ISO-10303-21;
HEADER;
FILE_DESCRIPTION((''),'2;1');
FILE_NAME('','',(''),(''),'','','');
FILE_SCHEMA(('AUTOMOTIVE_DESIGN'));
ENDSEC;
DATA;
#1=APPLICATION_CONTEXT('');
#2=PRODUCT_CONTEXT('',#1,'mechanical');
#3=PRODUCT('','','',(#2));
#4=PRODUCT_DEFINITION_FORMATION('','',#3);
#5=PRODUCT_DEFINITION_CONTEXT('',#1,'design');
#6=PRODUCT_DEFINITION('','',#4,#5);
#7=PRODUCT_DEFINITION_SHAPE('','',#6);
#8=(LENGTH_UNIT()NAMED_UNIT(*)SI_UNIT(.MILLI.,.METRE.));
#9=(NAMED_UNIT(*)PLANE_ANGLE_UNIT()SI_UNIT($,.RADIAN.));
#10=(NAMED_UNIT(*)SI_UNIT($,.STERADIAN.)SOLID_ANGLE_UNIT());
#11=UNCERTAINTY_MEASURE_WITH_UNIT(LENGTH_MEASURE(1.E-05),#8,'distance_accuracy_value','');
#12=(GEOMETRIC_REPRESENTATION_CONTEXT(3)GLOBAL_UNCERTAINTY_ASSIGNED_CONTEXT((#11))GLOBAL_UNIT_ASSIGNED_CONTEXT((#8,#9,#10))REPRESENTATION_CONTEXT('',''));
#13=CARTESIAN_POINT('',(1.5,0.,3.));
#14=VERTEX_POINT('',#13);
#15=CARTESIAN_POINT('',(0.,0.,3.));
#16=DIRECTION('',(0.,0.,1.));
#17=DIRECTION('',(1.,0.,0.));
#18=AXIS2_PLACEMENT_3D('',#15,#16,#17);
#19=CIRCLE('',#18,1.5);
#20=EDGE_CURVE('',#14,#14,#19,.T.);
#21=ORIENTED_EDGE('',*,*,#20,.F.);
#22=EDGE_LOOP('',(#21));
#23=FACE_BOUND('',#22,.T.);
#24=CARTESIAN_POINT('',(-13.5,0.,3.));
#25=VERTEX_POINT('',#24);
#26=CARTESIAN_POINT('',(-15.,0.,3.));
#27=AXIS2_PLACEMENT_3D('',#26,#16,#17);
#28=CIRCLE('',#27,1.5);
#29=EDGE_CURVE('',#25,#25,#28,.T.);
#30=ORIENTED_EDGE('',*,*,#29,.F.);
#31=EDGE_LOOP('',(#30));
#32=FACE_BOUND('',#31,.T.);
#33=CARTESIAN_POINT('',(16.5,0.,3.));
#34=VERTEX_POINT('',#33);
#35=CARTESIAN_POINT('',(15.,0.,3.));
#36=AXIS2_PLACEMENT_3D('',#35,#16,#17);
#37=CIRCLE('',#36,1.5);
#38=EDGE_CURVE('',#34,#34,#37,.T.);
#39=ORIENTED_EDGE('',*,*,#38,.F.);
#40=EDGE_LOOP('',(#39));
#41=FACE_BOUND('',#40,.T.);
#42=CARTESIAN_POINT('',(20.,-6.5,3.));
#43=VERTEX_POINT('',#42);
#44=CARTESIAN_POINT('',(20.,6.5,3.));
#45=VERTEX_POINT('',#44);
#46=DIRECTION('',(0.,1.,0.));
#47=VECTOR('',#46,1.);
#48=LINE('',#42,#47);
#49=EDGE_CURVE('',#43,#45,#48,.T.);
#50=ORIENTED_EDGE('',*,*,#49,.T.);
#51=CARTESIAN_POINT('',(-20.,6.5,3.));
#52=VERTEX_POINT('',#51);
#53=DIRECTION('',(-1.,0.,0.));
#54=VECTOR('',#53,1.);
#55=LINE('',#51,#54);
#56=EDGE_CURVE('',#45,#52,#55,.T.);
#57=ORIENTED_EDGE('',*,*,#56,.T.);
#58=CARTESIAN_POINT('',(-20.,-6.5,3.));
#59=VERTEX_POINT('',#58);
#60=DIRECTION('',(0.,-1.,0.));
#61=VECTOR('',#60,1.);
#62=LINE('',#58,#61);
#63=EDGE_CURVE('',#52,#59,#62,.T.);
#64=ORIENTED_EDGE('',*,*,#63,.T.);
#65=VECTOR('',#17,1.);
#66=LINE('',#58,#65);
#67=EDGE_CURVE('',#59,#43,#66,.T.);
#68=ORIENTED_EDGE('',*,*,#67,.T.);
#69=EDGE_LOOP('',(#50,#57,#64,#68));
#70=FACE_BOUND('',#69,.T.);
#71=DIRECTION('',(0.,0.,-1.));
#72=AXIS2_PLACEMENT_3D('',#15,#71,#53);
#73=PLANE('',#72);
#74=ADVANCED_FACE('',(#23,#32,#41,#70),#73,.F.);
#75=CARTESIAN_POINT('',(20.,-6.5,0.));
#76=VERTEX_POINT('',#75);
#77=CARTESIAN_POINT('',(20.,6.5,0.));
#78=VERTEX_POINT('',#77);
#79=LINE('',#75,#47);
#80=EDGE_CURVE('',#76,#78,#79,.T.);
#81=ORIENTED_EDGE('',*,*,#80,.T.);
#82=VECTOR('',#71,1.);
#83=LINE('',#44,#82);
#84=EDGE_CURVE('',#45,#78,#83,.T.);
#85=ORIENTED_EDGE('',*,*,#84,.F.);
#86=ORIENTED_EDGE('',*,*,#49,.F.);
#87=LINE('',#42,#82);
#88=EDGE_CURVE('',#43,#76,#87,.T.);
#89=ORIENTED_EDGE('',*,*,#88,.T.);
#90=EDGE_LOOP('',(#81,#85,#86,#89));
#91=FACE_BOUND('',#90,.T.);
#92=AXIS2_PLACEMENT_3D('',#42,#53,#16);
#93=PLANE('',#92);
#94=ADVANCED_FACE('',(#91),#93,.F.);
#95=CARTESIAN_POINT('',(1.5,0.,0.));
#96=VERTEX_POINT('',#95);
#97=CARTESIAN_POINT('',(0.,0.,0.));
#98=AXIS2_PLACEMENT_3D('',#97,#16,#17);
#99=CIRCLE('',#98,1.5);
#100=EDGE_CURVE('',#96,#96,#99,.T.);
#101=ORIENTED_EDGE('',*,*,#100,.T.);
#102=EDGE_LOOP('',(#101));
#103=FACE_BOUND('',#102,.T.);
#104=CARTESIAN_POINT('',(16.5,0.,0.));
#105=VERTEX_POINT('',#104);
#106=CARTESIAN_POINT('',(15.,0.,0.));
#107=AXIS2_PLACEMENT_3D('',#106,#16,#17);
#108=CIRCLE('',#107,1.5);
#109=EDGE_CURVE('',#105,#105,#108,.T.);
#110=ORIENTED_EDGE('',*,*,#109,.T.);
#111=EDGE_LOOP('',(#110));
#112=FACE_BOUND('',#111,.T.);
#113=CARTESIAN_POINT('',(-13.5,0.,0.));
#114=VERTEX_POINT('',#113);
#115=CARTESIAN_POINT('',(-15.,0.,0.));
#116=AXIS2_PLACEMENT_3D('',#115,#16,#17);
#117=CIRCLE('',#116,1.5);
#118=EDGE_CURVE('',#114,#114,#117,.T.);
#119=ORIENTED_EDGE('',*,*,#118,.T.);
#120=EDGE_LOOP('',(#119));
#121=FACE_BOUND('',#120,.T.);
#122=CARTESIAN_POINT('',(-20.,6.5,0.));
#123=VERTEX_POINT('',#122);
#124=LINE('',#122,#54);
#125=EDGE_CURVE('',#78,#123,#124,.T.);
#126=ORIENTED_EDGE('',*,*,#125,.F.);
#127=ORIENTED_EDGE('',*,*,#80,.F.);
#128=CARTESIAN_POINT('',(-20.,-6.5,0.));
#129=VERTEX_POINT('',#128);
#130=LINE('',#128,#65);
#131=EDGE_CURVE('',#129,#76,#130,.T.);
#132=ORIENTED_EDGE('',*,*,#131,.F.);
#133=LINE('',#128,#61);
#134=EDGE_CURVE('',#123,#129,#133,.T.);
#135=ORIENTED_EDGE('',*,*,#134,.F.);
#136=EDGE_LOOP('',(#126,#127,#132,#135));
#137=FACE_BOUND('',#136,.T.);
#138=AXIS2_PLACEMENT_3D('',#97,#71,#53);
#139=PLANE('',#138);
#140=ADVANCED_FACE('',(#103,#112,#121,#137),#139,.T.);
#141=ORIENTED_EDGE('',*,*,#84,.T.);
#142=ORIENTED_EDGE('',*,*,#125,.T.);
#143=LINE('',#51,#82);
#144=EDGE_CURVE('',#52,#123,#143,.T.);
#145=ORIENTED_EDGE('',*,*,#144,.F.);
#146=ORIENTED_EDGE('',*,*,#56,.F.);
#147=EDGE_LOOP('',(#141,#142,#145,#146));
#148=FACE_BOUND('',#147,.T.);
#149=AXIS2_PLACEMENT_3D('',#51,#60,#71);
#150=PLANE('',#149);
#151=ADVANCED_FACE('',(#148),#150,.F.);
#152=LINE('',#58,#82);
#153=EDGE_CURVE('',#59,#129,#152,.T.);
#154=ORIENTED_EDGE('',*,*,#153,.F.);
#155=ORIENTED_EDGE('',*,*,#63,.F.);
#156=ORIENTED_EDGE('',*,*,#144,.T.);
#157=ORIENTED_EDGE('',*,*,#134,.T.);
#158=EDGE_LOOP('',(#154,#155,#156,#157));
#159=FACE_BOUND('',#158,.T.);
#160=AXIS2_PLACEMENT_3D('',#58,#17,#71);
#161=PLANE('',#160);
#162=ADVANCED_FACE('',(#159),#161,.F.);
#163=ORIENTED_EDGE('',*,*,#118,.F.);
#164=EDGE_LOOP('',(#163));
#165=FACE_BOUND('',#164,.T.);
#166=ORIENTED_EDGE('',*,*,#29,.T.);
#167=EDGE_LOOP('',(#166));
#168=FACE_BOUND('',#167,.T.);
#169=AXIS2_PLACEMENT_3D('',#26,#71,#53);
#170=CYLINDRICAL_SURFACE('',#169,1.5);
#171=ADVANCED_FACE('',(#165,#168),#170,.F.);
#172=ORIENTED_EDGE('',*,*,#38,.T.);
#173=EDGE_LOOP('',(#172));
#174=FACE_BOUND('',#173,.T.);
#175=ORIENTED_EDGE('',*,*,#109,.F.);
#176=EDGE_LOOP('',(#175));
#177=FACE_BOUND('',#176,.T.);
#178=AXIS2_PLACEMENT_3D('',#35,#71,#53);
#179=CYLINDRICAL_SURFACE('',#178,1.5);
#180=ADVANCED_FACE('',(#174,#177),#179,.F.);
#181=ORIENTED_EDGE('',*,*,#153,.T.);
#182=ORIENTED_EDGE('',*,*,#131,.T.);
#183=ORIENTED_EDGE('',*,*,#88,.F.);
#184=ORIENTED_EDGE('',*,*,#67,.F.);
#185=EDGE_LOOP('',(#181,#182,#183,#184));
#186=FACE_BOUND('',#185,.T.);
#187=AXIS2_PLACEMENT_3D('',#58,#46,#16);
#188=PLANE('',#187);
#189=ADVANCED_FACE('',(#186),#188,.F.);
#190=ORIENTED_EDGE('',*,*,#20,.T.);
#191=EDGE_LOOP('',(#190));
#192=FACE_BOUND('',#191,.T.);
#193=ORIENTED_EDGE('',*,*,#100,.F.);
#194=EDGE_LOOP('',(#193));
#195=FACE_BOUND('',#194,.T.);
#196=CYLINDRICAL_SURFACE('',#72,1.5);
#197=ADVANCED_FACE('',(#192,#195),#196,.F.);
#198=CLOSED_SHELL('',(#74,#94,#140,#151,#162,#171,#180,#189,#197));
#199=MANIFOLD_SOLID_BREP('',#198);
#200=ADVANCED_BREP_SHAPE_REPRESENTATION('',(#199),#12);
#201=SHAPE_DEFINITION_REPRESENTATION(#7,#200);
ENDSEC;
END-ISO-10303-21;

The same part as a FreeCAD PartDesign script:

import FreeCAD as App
import Part
import Sketcher
from FreeCAD import Vector
Q = App.Units.Quantity

doc = App.newDocument("Part")
body = doc.addObject("PartDesign::Body", "Body")

# Sketch on XY plane
sketch1 = body.newObject("Sketcher::SketchObject", "Sketch")
sketch1.AttachmentSupport = (doc.getObject("XY_Plane"), [""])
sketch1.MapMode = "FlatFace"
sketch1.addGeometry(Part.LineSegment(Vector(-20, 6.5, 0), Vector(-20, -6.5, 0)), False)
sketch1.addGeometry(Part.LineSegment(Vector(-20, -6.5, 0), Vector(20, -6.5, 0)), False)
sketch1.addGeometry(Part.LineSegment(Vector(20, -6.5, 0), Vector(20, 6.5, 0)), False)
sketch1.addGeometry(Part.LineSegment(Vector(20, 6.5, 0), Vector(-20, 6.5, 0)), False)
sketch1.addGeometry(Part.Circle(Vector(-15, 0, 0), Vector(0, 0, 1), 1.5), False)
sketch1.addGeometry(Part.Circle(Vector(0, 0, 0), Vector(0, 0, 1), 1.5), False)
sketch1.addGeometry(Part.Circle(Vector(15, 0, 0), Vector(0, 0, 1), 1.5), False)
sketch1.addConstraint(Sketcher.Constraint("Coincident", 0, 2, 1, 1))
sketch1.addConstraint(Sketcher.Constraint("Coincident", 1, 2, 2, 1))
sketch1.addConstraint(Sketcher.Constraint("Coincident", 2, 2, 3, 1))
sketch1.addConstraint(Sketcher.Constraint("Coincident", 3, 2, 0, 1))
sketch1.addConstraint(Sketcher.Constraint("Vertical", 0))
sketch1.addConstraint(Sketcher.Constraint("Horizontal", 1))
sketch1.addConstraint(Sketcher.Constraint("Vertical", 2))
sketch1.addConstraint(Sketcher.Constraint("Horizontal", 3))
sketch1.addConstraint(Sketcher.Constraint("Coincident", 5, 3, -1, 1))
sketch1.addConstraint(Sketcher.Constraint("Equal", 4, 5))
sketch1.addConstraint(Sketcher.Constraint("Equal", 5, 6))
sketch1.addConstraint(Sketcher.Constraint("Symmetric", 4, 3, 6, 3, -1, 1))
sketch1.addConstraint(Sketcher.Constraint("Symmetric", 0, 2, 2, 2, -1, 1))
sketch1.addConstraint(Sketcher.Constraint("PointOnObject", 4, 3, -1))
sketch1.addConstraint(Sketcher.Constraint("Diameter", 4, Q("3 mm")))
sketch1.addConstraint(Sketcher.Constraint("DistanceX", 1, 1, 1, 2, Q("40 mm")))
sketch1.addConstraint(Sketcher.Constraint("DistanceY", 0, 2, 0, 1, Q("13 mm")))
sketch1.addConstraint(Sketcher.Constraint("DistanceX", 4, 3, -1, 1, Q("15 mm")))
pad1 = body.newObject("PartDesign::Pad", "Pad")
pad1.Profile = sketch1
pad1.Length = 3

doc.recompute()
